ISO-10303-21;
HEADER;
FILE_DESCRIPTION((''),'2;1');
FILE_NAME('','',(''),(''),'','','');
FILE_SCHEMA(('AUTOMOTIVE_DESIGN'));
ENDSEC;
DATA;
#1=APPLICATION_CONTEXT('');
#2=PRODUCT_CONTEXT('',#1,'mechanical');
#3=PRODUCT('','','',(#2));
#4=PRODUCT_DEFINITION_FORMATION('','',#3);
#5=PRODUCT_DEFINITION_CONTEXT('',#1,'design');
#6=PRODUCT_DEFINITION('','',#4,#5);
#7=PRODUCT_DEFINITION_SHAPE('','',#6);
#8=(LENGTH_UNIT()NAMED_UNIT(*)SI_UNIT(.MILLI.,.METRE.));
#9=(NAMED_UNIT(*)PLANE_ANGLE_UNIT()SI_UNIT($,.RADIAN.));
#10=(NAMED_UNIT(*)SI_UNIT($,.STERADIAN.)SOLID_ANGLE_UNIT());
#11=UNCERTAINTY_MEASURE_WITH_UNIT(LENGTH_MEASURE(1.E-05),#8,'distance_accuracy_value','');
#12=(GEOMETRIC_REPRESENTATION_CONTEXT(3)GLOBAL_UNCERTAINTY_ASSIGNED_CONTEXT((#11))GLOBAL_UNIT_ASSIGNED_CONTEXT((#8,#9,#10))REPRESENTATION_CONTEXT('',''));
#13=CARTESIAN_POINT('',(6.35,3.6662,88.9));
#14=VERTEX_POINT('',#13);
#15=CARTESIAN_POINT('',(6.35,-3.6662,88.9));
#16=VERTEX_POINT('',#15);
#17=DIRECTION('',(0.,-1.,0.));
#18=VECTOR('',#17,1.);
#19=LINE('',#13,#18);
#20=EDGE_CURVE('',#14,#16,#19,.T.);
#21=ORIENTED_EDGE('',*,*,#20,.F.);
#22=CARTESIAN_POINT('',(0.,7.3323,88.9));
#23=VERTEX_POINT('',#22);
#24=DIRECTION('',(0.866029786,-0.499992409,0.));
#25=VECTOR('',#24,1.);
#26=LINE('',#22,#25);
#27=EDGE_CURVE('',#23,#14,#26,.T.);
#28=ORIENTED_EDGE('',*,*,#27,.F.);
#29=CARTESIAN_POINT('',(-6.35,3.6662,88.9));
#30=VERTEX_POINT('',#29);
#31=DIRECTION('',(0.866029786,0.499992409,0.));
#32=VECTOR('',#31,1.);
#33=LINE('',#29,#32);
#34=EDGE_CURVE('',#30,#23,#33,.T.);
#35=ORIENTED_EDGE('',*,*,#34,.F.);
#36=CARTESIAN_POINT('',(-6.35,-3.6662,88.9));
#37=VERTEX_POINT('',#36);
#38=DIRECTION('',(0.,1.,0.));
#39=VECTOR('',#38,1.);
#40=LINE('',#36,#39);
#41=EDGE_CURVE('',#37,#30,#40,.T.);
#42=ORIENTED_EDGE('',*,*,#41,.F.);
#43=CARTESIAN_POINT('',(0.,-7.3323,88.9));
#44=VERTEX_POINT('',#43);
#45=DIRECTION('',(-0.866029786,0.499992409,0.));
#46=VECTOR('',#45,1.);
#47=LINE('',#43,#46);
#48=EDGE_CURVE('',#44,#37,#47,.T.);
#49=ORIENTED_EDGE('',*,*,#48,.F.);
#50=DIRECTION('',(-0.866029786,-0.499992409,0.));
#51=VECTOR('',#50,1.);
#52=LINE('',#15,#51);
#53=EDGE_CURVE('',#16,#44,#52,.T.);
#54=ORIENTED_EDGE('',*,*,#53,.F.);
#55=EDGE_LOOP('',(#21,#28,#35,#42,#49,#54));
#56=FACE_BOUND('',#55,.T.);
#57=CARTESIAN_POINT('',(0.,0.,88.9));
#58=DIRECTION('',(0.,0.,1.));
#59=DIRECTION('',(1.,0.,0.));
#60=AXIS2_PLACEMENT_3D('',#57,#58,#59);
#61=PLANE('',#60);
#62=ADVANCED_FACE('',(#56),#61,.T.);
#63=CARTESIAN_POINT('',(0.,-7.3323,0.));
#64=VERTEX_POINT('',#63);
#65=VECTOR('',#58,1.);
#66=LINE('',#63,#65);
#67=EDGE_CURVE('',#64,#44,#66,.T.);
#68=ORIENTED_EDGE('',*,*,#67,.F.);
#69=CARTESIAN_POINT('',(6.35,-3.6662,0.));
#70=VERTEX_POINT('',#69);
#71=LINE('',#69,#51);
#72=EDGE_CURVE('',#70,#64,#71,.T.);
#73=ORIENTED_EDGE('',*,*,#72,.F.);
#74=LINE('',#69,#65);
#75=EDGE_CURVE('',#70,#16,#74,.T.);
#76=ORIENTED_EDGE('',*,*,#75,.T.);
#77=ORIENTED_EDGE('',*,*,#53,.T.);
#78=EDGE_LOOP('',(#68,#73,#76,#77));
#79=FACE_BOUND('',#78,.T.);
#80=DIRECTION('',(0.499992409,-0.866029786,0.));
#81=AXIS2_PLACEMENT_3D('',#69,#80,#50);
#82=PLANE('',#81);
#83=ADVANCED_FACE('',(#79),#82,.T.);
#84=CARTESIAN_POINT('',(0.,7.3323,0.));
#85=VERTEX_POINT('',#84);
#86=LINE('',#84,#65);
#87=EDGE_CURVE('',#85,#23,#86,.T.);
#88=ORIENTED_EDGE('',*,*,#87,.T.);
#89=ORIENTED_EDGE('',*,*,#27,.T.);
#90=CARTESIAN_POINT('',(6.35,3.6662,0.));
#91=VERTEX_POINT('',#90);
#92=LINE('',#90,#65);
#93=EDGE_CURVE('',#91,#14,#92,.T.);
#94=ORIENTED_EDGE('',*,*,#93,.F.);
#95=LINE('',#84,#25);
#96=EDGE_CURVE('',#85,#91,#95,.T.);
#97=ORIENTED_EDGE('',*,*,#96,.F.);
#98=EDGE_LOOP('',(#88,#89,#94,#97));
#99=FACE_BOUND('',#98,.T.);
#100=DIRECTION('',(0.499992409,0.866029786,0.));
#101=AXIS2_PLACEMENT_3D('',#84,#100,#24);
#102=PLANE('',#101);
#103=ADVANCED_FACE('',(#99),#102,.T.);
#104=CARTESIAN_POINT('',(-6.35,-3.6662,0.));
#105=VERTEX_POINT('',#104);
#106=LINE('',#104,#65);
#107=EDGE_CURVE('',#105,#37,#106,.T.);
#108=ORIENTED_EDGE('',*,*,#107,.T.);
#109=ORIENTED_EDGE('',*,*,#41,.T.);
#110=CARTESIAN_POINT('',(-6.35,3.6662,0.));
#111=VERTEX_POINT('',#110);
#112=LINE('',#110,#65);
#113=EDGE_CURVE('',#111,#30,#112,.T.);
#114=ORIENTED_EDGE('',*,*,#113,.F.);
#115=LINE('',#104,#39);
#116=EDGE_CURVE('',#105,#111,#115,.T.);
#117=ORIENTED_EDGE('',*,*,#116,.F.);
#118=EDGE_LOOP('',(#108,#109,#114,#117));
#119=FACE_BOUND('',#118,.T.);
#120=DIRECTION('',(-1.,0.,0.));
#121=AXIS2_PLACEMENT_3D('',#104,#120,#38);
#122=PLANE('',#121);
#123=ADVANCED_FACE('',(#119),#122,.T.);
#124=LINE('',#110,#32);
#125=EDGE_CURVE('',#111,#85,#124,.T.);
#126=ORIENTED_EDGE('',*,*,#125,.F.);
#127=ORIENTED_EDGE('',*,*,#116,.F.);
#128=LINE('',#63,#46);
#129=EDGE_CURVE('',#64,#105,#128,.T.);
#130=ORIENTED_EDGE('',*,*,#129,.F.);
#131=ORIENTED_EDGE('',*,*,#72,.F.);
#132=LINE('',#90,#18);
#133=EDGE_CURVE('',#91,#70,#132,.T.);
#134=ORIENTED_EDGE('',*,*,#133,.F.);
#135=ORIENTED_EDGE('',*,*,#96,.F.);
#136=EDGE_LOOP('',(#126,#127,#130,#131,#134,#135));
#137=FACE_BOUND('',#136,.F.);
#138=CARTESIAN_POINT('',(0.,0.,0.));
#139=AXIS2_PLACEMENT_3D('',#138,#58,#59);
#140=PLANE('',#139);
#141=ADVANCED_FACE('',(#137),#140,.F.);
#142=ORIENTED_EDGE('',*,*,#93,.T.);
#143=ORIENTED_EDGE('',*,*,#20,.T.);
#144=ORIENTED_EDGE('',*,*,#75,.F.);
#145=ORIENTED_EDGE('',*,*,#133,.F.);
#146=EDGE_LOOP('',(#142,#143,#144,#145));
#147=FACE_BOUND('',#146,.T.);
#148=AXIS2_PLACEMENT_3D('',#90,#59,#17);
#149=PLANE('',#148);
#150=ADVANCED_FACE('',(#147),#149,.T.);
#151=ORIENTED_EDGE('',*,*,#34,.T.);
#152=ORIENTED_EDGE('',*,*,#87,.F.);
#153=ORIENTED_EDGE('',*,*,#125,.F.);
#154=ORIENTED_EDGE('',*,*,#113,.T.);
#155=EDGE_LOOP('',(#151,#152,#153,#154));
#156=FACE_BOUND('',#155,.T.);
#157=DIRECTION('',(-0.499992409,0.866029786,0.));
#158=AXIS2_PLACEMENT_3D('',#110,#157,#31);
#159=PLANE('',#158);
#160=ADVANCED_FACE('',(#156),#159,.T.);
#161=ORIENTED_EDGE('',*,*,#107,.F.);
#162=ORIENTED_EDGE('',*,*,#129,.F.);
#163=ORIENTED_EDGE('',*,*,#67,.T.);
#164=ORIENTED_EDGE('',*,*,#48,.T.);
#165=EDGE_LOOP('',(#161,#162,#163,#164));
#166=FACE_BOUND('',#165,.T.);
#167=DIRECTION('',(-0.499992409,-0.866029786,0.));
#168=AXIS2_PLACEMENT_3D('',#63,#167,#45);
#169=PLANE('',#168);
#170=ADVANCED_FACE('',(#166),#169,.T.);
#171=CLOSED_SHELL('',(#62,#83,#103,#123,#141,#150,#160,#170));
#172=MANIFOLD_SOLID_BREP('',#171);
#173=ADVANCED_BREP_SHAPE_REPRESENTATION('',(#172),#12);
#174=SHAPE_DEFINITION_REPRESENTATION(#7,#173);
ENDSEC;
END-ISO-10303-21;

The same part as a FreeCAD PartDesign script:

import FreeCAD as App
import Part
import Sketcher
from FreeCAD import Vector
Q = App.Units.Quantity


def add_polygon(sketch, points):
    """Adds a closed chain of lines whose ends are joined by coincident constraints."""
    first, n = sketch.GeometryCount, len(points)
    for a, b in zip(points, points[1:] + points[:1]):
        sketch.addGeometry(Part.LineSegment(App.Vector(*a, 0), App.Vector(*b, 0)), False)
    for i in range(n):
        sketch.addConstraint(Sketcher.Constraint("Coincident", first + i, 2, first + (i + 1) % n, 1))

doc = App.newDocument("Part")
body = doc.addObject("PartDesign::Body", "Body")

# Sketch on XY plane
sketch1 = body.newObject("Sketcher::SketchObject", "Sketch")
sketch1.AttachmentSupport = (doc.getObject("XY_Plane"), [""])
sketch1.MapMode = "FlatFace"
add_polygon(sketch1, [(6, 4), (0, 7), (-6, 4), (-6, -4), (0, -7), (6, -4)])  # lines 0-5
sketch1.addConstraint([
    Sketcher.Constraint("Vertical", 2),
    Sketcher.Constraint("Vertical", 5),
    Sketcher.Constraint("Symmetric", 0, 2, 3, 2, -1, 1),
    Sketcher.Constraint("Symmetric", 1, 2, 4, 2, -1, 1),
    Sketcher.Constraint("PointOnObject", 0, 2, -2),
    Sketcher.Constraint("Parallel", 0, 3),
    Sketcher.Constraint("Horizontal", 2, 2, 4, 2),
    Sketcher.Constraint("DistanceX", 2, 2, 4, 2, Q("0.5 in")),
    Sketcher.Constraint("Angle", 0, Q("150.0005 deg")),
    Sketcher.Constraint("DistanceY", 2, 2, 0, 2, Q("0.433 in")),
])
pad1 = body.newObject("PartDesign::Pad", "Pad")
pad1.Profile = sketch1
pad1.Length = Q("3.5 in")

doc.recompute()
